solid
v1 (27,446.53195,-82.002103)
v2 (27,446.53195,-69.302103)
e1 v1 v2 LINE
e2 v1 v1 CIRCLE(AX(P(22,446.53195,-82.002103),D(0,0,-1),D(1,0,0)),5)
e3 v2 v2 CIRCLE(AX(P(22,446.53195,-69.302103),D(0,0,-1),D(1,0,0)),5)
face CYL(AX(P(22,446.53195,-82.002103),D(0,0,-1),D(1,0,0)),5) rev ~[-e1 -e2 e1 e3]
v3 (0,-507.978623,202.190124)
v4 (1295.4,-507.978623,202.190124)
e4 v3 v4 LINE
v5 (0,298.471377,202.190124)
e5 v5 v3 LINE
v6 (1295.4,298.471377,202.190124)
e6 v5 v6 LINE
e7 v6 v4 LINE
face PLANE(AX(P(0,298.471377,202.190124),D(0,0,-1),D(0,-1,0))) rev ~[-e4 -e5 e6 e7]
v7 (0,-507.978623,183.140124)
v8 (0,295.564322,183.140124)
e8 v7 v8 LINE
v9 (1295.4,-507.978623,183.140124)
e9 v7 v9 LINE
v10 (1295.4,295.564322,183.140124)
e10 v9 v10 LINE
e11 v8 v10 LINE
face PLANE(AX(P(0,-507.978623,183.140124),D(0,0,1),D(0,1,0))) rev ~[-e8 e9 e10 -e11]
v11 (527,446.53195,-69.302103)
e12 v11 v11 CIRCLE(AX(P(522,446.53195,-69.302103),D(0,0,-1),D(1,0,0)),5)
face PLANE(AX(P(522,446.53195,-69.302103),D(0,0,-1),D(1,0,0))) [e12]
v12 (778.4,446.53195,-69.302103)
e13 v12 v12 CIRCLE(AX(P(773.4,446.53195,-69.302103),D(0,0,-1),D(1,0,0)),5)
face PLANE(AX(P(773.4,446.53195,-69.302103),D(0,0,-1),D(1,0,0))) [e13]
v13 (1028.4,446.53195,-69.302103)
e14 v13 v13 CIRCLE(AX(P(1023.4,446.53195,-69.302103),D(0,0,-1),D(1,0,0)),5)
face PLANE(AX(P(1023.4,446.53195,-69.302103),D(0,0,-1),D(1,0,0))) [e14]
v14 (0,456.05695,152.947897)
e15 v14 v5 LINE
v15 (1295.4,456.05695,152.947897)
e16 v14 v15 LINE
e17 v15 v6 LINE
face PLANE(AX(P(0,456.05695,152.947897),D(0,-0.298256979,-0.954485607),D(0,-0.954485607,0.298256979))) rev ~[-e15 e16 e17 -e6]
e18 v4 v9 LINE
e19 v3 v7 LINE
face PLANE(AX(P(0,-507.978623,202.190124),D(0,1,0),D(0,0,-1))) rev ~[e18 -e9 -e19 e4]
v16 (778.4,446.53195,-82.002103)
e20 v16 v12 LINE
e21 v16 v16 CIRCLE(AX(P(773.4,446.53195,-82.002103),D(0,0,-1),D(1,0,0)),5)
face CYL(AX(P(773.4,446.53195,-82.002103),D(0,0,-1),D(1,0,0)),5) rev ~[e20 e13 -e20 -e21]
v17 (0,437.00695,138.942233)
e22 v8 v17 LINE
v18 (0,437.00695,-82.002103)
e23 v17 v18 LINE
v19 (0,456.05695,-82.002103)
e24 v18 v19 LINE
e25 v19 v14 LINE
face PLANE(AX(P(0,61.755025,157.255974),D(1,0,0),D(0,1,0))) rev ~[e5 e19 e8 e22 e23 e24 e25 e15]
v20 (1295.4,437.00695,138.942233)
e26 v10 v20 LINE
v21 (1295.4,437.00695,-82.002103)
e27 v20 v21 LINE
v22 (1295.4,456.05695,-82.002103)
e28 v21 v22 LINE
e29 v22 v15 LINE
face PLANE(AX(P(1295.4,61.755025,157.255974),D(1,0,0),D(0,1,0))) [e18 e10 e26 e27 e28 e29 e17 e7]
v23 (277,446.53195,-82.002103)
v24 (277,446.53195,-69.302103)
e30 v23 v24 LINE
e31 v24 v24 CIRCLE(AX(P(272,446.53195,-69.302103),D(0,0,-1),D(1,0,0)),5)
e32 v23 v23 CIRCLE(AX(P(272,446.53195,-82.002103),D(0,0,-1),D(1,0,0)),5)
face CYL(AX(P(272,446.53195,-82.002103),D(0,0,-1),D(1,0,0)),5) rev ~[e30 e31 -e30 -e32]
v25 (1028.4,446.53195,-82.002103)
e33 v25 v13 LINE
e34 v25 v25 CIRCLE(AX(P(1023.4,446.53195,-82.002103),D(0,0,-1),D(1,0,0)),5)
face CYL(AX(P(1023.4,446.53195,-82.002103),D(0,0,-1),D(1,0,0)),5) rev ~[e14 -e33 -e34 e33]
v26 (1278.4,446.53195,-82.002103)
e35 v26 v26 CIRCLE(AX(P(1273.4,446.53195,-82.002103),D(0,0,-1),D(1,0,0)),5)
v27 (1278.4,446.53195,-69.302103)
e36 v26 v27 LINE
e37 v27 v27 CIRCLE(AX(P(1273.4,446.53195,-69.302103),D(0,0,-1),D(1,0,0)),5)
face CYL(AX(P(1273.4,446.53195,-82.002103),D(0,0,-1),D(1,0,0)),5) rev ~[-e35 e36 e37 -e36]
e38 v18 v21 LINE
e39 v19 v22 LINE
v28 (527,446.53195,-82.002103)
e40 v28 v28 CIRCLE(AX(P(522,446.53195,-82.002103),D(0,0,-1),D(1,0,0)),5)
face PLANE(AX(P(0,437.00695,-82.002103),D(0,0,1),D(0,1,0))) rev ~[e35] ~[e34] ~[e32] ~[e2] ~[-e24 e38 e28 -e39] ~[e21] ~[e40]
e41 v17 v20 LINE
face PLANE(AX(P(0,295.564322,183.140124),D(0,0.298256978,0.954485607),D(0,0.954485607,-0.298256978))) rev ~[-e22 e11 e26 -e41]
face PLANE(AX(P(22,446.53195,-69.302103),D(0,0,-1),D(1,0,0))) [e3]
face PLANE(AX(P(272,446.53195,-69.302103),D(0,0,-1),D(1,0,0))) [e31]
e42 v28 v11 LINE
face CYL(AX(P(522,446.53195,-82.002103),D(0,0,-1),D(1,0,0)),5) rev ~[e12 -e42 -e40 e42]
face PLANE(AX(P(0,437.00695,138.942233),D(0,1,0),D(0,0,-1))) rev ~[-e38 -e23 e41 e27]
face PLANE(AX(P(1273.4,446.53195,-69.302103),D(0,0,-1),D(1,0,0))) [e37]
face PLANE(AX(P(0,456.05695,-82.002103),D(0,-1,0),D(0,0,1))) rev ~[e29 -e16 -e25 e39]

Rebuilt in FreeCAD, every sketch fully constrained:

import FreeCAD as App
import Part
import Sketcher

V = App.Vector
Q = App.Units.Quantity

doc = App.newDocument("Part")
params = doc.addObject("Spreadsheet::Sheet", "Params")
for row, (alias, value) in enumerate([
    ("sketch1_length", "6.5 in"),
    ("sketch1_width", "31.75 in"),
    ("sketch1_width2", "0.75 in"),
    ("sketch1_height", "9.25 in"),
    ("pad1_length", "51 in"),
    ("pocket1_length", "0.5 in"),
], start=1):
    params.set(f"A{row}", alias)
    params.set(f"B{row}", "=" + value)
    params.setAlias(f"B{row}", alias)

body = doc.addObject("PartDesign::Body", "Body")

# Sketch on YZ plane
sketch1 = body.newObject("Sketcher::SketchObject", "Sketch")
sketch1.AttachmentSupport = (doc.getObject("YZ_Plane"), [""])
sketch1.MapMode = "FlatFace"
sketch1.addGeometry([
    Part.LineSegment(V(298, 202, 0), V(-508, 202, 0)),  # 0
    Part.LineSegment(V(-508, 202, 0), V(-508, 183, 0)),  # 1
    Part.LineSegment(V(-508, 183, 0), V(296, 183, 0)),  # 2
    Part.LineSegment(V(296, 183, 0), V(437, 139, 0)),  # 3
    Part.LineSegment(V(437, 139, 0), V(437, -82, 0)),  # 4
    Part.LineSegment(V(437, -82, 0), V(456, -82, 0)),  # 5
    Part.LineSegment(V(456, -82, 0), V(456, 153, 0)),  # 6
    Part.LineSegment(V(456, 153, 0), V(298, 202, 0)),  # 7
], False)
sketch1.addConstraint([
    Sketcher.Constraint("Coincident", 0, 2, 1, 1),
    Sketcher.Constraint("Coincident", 1, 2, 2, 1),
    Sketcher.Constraint("Coincident", 2, 2, 3, 1),
    Sketcher.Constraint("Coincident", 3, 2, 4, 1),
    Sketcher.Constraint("Coincident", 4, 2, 5, 1),
    Sketcher.Constraint("Coincident", 5, 2, 6, 1),
    Sketcher.Constraint("Coincident", 6, 2, 7, 1),
    Sketcher.Constraint("Coincident", 7, 2, 0, 1),
    Sketcher.Constraint("Horizontal", 0),
    Sketcher.Constraint("Vertical", 1),
    Sketcher.Constraint("Horizontal", 2),
    Sketcher.Constraint("Vertical", 4),
    Sketcher.Constraint("Horizontal", 5),
    Sketcher.Constraint("Vertical", 6),
    Sketcher.Constraint("Parallel", 3, 7),
    Sketcher.Constraint("Equal", 5, 1),
    Sketcher.Constraint("Distance", 7, Q("6.5 in")),
    Sketcher.Constraint("DistanceX", 0, 2, 0, 1, Q("31.75 in")),
    Sketcher.Constraint("DistanceX", 5, 1, 5, 2, Q("0.75 in")),
    Sketcher.Constraint("DistanceY", 6, 1, 6, 2, Q("9.25 in")),
    Sketcher.Constraint("DistanceX", 2, 1, 2, 2, Q("803.542945 mm")),
    Sketcher.Constraint("DistanceY", 4, 2, 4, 1, Q("220.944336 mm")),
    Sketcher.Constraint("DistanceX", -1, 1, 2, 2, Q("295.564322 mm")),
    Sketcher.Constraint("DistanceY", -1, 1, 0, 2, Q("202.190124 mm")),
])
sketch1.setExpression("Constraints[16]", "Params.sketch1_length")
sketch1.setExpression("Constraints[17]", "Params.sketch1_width")
sketch1.setExpression("Constraints[18]", "Params.sketch1_width2")
sketch1.setExpression("Constraints[19]", "Params.sketch1_height")
pad1 = body.newObject("PartDesign::Pad", "Pad")
pad1.Profile = sketch1
pad1.setExpression("Length", "Params.pad1_length")

# Sketch on XY plane
sketch2 = body.newObject("Sketcher::SketchObject", "Sketch001")
sketch2.AttachmentSupport = (doc.getObject("XY_Plane"), [""])
sketch2.MapMode = "FlatFace"
sketch2.AttachmentOffset = App.Placement(V(0, 0, -82.002103), App.Rotation())
sketch2.addGeometry([
    Part.Circle(V(22, 447, 0), V(0, 0, 1), 5),  # 0
    Part.Circle(V(1273, 447, 0), V(0, 0, 1), 5),  # 1
    Part.Circle(V(1023, 447, 0), V(0, 0, 1), 5),  # 2
    Part.Circle(V(272, 447, 0), V(0, 0, 1), 5),  # 3
    Part.Circle(V(773, 447, 0), V(0, 0, 1), 5),  # 4
    Part.Circle(V(522, 447, 0), V(0, 0, 1), 5),  # 5
], False)
sketch2.addConstraint([
    Sketcher.Constraint("Equal", 0, 1),
    Sketcher.Constraint("Equal", 1, 2),
    Sketcher.Constraint("Equal", 2, 3),
    Sketcher.Constraint("Equal", 3, 4),
    Sketcher.Constraint("Equal", 4, 5),
    Sketcher.Constraint("Horizontal", 0, 3, 1, 3),
    Sketcher.Constraint("Horizontal", 1, 3, 2, 3),
    Sketcher.Constraint("Horizontal", 2, 3, 3, 3),
    Sketcher.Constraint("Horizontal", 3, 3, 4, 3),
    Sketcher.Constraint("Horizontal", 4, 3, 5, 3),
    Sketcher.Constraint("Diameter", 0, Q("10 mm")),
    Sketcher.Constraint("DistanceX", -1, 1, 0, 3, Q("22 mm")),
    Sketcher.Constraint("DistanceX", -1, 1, 1, 3, Q("1273.4 mm")),
    Sketcher.Constraint("DistanceX", -1, 1, 2, 3, Q("1023.4 mm")),
    Sketcher.Constraint("DistanceX", -1, 1, 3, 3, Q("272 mm")),
    Sketcher.Constraint("DistanceX", -1, 1, 4, 3, Q("773.4 mm")),
    Sketcher.Constraint("DistanceX", -1, 1, 5, 3, Q("522 mm")),
    Sketcher.Constraint("DistanceY", -1, 1, 0, 3, Q("446.53195 mm")),
])
pocket1 = body.newObject("PartDesign::Pocket", "Pocket")
pocket1.Profile = sketch2
pocket1.setExpression("Length", "Params.pocket1_length")
pocket1.Reversed = True

doc.recompute()
